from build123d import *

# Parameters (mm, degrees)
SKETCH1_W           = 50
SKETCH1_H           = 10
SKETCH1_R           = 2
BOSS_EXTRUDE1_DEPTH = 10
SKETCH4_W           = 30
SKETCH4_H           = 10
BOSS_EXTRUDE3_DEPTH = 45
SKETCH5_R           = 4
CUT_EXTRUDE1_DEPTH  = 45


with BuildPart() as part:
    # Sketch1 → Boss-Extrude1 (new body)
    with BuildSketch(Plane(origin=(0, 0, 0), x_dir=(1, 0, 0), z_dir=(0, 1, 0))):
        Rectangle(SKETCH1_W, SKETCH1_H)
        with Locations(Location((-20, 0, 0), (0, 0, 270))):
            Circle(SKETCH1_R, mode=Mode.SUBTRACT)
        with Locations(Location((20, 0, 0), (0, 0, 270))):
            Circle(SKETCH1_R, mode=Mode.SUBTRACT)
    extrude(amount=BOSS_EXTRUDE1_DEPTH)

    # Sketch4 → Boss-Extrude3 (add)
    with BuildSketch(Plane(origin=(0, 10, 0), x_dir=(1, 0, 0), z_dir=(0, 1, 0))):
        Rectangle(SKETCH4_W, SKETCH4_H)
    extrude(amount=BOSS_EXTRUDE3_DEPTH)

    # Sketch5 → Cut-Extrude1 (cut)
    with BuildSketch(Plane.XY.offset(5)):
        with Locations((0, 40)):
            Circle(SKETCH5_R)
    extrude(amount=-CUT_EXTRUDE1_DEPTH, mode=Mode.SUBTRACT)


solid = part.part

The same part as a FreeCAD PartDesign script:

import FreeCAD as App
import Part
import Sketcher

V = App.Vector
Q = App.Units.Quantity

doc = App.newDocument("Part")
params = doc.addObject("Spreadsheet::Sheet", "Params")
for row, (alias, value) in enumerate([
    ("sketch1_diameter", "4 mm"),
    ("sketch1_width", "50 mm"),
    ("sketch1_height", "10 mm"),
    ("pad1_length", "10 mm"),
    ("sketch2_width", "30 mm"),
    ("sketch2_height", "10 mm"),
    ("pad2_length", "45 mm"),
    ("sketch3_diameter", "8 mm"),
    ("pocket1_length", "45 mm"),
], start=1):
    params.set(f"A{row}", alias)
    params.set(f"B{row}", "=" + value)
    params.setAlias(f"B{row}", alias)

body = doc.addObject("PartDesign::Body", "Body")

# Sketch on XZ plane
sketch1 = doc.addObject("Sketcher::SketchObject", "Sketch")
body.addObject(sketch1)
sketch1.AttachmentSupport = (doc.XZ_Plane, [""])
sketch1.MapMode = "FlatFace"
sketch1.addGeometry(Part.LineSegment(V(-25, -5, 0), V(-25, 5, 0)), False)
sketch1.addGeometry(Part.LineSegment(V(-25, 5, 0), V(25, 5, 0)), False)
sketch1.addGeometry(Part.LineSegment(V(25, 5, 0), V(25, -5, 0)), False)
sketch1.addGeometry(Part.LineSegment(V(25, -5, 0), V(-25, -5, 0)), False)
sketch1.addGeometry(Part.Circle(V(-20, 0, 0), V(0, 0, 1), 2), False)
sketch1.addGeometry(Part.Circle(V(20, 0, 0), V(0, 0, 1), 2), False)
sketch1.addConstraint(Sketcher.Constraint("Coincident", 0, 2, 1, 1))
sketch1.addConstraint(Sketcher.Constraint("Coincident", 1, 2, 2, 1))
sketch1.addConstraint(Sketcher.Constraint("Coincident", 2, 2, 3, 1))
sketch1.addConstraint(Sketcher.Constraint("Coincident", 3, 2, 0, 1))
sketch1.addConstraint(Sketcher.Constraint("Vertical", 0))
sketch1.addConstraint(Sketcher.Constraint("Horizontal", 1))
sketch1.addConstraint(Sketcher.Constraint("Vertical", 2))
sketch1.addConstraint(Sketcher.Constraint("Horizontal", 3))
sketch1.addConstraint(Sketcher.Constraint("Equal", 4, 5))
sketch1.addConstraint(Sketcher.Constraint("Symmetric", 4, 3, 5, 3, -1, 1))
sketch1.addConstraint(Sketcher.Constraint("Symmetric", 0, 2, 2, 2, -1, 1))
sketch1.addConstraint(Sketcher.Constraint("PointOnObject", 4, 3, -1))
sketch1.addConstraint(Sketcher.Constraint("Diameter", 4, Q("4 mm")))
sketch1.addConstraint(Sketcher.Constraint("DistanceX", 1, 1, 1, 2, Q("50 mm")))
sketch1.addConstraint(Sketcher.Constraint("DistanceY", 0, 1, 0, 2, Q("10 mm")))
sketch1.addConstraint(Sketcher.Constraint("DistanceX", 4, 3, -1, 1, Q("20 mm")))
sketch1.setExpression("Constraints[12]", "Params.sketch1_diameter")
sketch1.setExpression("Constraints[13]", "Params.sketch1_width")
sketch1.setExpression("Constraints[14]", "Params.sketch1_height")
pad1 = doc.addObject("PartDesign::Pad", "Pad")
body.addObject(pad1)
pad1.Profile = sketch1
pad1.setExpression("Length", "Params.pad1_length")
pad1.Reversed = True

# Sketch on XZ plane
sketch2 = doc.addObject("Sketcher::SketchObject", "Sketch001")
body.addObject(sketch2)
sketch2.AttachmentSupport = (doc.XZ_Plane, [""])
sketch2.MapMode = "FlatFace"
sketch2.AttachmentOffset = App.Placement(V(0, 0, -10), App.Rotation())
sketch2.addGeometry(Part.LineSegment(V(-15, -5, 0), V(-15, 5, 0)), False)
sketch2.addGeometry(Part.LineSegment(V(-15, 5, 0), V(15, 5, 0)), False)
sketch2.addGeometry(Part.LineSegment(V(15, 5, 0), V(15, -5, 0)), False)
sketch2.addGeometry(Part.LineSegment(V(15, -5, 0), V(-15, -5, 0)), False)
sketch2.addConstraint(Sketcher.Constraint("Coincident", 0, 2, 1, 1))
sketch2.addConstraint(Sketcher.Constraint("Coincident", 1, 2, 2, 1))
sketch2.addConstraint(Sketcher.Constraint("Coincident", 2, 2, 3, 1))
sketch2.addConstraint(Sketcher.Constraint("Coincident", 3, 2, 0, 1))
sketch2.addConstraint(Sketcher.Constraint("Vertical", 0))
sketch2.addConstraint(Sketcher.Constraint("Horizontal", 1))
sketch2.addConstraint(Sketcher.Constraint("Vertical", 2))
sketch2.addConstraint(Sketcher.Constraint("Horizontal", 3))
sketch2.addConstraint(Sketcher.Constraint("Symmetric", 0, 2, 2, 2, -1, 1))
sketch2.addConstraint(Sketcher.Constraint("DistanceX", 1, 1, 1, 2, Q("30 mm")))
sketch2.addConstraint(Sketcher.Constraint("DistanceY", 0, 1, 0, 2, Q("10 mm")))
sketch2.setExpression("Constraints[9]", "Params.sketch2_width")
sketch2.setExpression("Constraints[10]", "Params.sketch2_height")
pad2 = doc.addObject("PartDesign::Pad", "Pad001")
body.addObject(pad2)
pad2.Profile = sketch2
pad2.setExpression("Length", "Params.pad2_length")
pad2.Reversed = True

# Sketch on XY plane
sketch3 = doc.addObject("Sketcher::SketchObject", "Sketch002")
body.addObject(sketch3)
sketch3.AttachmentSupport = (doc.XY_Plane, [""])
sketch3.MapMode = "FlatFace"
sketch3.AttachmentOffset = App.Placement(V(0, 0, 5), App.Rotation())
sketch3.addGeometry(Part.Circle(V(0, 40, 0), V(0, 0, 1), 4), False)
sketch3.addConstraint(Sketcher.Constraint("PointOnObject", 0, 3, -2))
sketch3.addConstraint(Sketcher.Constraint("Diameter", 0, Q("8 mm")))
sketch3.addConstraint(Sketcher.Constraint("DistanceY", -1, 1, 0, 3, Q("40 mm")))
sketch3.setExpression("Constraints[1]", "Params.sketch3_diameter")
pocket1 = doc.addObject("PartDesign::Pocket", "Pocket")
body.addObject(pocket1)
pocket1.Profile = sketch3
pocket1.setExpression("Length", "Params.pocket1_length")

doc.recompute()
